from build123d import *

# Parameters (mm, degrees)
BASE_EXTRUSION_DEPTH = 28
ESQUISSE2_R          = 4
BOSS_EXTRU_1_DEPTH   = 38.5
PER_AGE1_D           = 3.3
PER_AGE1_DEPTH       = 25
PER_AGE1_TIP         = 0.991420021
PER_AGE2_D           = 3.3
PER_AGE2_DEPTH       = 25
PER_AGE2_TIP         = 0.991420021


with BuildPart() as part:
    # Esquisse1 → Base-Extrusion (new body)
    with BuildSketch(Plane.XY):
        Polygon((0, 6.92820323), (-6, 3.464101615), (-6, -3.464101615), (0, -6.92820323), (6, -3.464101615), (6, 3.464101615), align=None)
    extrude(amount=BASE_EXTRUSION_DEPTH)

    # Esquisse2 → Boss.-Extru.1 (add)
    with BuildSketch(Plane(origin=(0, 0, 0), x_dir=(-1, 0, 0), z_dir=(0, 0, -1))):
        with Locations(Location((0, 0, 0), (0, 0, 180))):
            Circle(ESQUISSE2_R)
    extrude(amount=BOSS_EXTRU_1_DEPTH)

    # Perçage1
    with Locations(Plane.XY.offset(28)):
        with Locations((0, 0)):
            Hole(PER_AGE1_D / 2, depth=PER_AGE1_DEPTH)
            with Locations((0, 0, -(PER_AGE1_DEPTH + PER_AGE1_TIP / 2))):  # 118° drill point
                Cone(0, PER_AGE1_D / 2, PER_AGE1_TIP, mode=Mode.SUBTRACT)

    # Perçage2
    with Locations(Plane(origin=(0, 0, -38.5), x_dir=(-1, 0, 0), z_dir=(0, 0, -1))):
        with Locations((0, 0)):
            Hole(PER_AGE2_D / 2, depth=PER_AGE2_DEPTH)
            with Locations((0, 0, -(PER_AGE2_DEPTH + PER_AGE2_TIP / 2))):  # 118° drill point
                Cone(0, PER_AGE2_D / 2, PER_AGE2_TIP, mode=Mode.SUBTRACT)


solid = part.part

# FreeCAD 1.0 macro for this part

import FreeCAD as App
import Part
import Sketcher
Q = App.Units.Quantity

doc = App.newDocument("Part")
body = doc.addObject("PartDesign::Body", "Body")

sketch1 = body.newObject("Sketcher::SketchObject", "Sketch")
sketch1.AttachmentSupport = (doc.getObject("XY_Plane"), [""])
sketch1.MapMode = "FlatFace"
sketch1.addGeometry([
    Part.LineSegment(App.Vector(0, 7, 0), App.Vector(-6, 3, 0)),
    Part.LineSegment(App.Vector(-6, 3, 0), App.Vector(-6, -3, 0)),
    Part.LineSegment(App.Vector(-6, -3, 0), App.Vector(0, -7, 0)),
    Part.LineSegment(App.Vector(0, -7, 0), App.Vector(6, -3, 0)),
    Part.LineSegment(App.Vector(6, -3, 0), App.Vector(6, 3, 0)),
    Part.LineSegment(App.Vector(6, 3, 0), App.Vector(0, 7, 0)),
], False)
sketch1.addConstraint([
    Sketcher.Constraint("Coincident", 0, 2, 1, 1),
    Sketcher.Constraint("Coincident", 1, 2, 2, 1),
    Sketcher.Constraint("Coincident", 2, 2, 3, 1),
    Sketcher.Constraint("Coincident", 3, 2, 4, 1),
    Sketcher.Constraint("Coincident", 4, 2, 5, 1),
    Sketcher.Constraint("Coincident", 5, 2, 0, 1),
    Sketcher.Constraint("Vertical", 1),
    Sketcher.Constraint("Vertical", 4),
    Sketcher.Constraint("Symmetric", 0, 2, 3, 2, -1, 1),
    Sketcher.Constraint("Symmetric", 2, 2, 5, 2, -1, 1),
    Sketcher.Constraint("PointOnObject", 2, 2, -2),
    Sketcher.Constraint("Parallel", 2, 5),
    Sketcher.Constraint("Horizontal", 1, 2, 3, 2),
    Sketcher.Constraint("Angle", 0, Q("-150 deg")),
    Sketcher.Constraint("DistanceX", 0, 2, -1, 1, 6.0),
    Sketcher.Constraint("DistanceY", -1, 1, 0, 2, 3.464102),
])
pad1 = body.newObject("PartDesign::Pad", "Pad")
pad1.Profile = sketch1
pad1.Length = 28

sketch2 = body.newObject("Sketcher::SketchObject", "Sketch001")
sketch2.AttachmentSupport = (doc.getObject("XY_Plane"), [""])
sketch2.MapMode = "FlatFace"
sketch2.addGeometry(Part.Circle(App.Vector(0, 0, 0), App.Vector(0, 0, 1), 4), False)
sketch2.addConstraint([
    Sketcher.Constraint("Coincident", 0, 3, -1, 1),
    Sketcher.Constraint("Diameter", 0, 8.0),
])
pad2 = body.newObject("PartDesign::Pad", "Pad001")
pad2.Profile = sketch2
pad2.Length = 38.5
pad2.Reversed = True

sketch3 = body.newObject("Sketcher::SketchObject", "Sketch002")
sketch3.AttachmentSupport = (doc.getObject("XY_Plane"), [""])
sketch3.MapMode = "FlatFace"
sketch3.AttachmentOffset = App.Placement(App.Vector(0, 0, 28), App.Rotation())
sketch3.addGeometry(Part.Circle(App.Vector(0, 0, 0), App.Vector(0, 0, 1), 1.6), False)
sketch3.addConstraint([
    Sketcher.Constraint("Coincident", 0, 3, -1, 1),
    Sketcher.Constraint("Diameter", 0, 3.3),
])
doc.recompute()
hole = body.newObject("PartDesign::Hole", "Hole")
hole.Profile = sketch3
hole.ThreadType = "None"
hole.Diameter = 3.3
hole.DepthType = "Dimension"
hole.Depth = 25
hole.DrillPoint = "Angled"
hole.DrillPointAngle = 118

sketch4 = body.newObject("Sketcher::SketchObject", "Sketch003")
sketch4.AttachmentSupport = (doc.getObject("XY_Plane"), [""])
sketch4.MapMode = "FlatFace"
sketch4.AttachmentOffset = App.Placement(App.Vector(0, 0, -38.5), App.Rotation())
sketch4.addGeometry(Part.Circle(App.Vector(0, 0, 0), App.Vector(0, 0, 1), 1.6), False)
sketch4.addConstraint([
    Sketcher.Constraint("Coincident", 0, 3, -1, 1),
    Sketcher.Constraint("Diameter", 0, 3.3),
])
doc.recompute()
hole2 = body.newObject("PartDesign::Hole", "Hole001")
hole2.Profile = sketch4
hole2.ThreadType = "None"
hole2.Diameter = 3.3
hole2.DepthType = "Dimension"
hole2.Depth = 25
hole2.DrillPoint = "Angled"
hole2.DrillPointAngle = 118
hole2.Reversed = True

doc.recompute()
